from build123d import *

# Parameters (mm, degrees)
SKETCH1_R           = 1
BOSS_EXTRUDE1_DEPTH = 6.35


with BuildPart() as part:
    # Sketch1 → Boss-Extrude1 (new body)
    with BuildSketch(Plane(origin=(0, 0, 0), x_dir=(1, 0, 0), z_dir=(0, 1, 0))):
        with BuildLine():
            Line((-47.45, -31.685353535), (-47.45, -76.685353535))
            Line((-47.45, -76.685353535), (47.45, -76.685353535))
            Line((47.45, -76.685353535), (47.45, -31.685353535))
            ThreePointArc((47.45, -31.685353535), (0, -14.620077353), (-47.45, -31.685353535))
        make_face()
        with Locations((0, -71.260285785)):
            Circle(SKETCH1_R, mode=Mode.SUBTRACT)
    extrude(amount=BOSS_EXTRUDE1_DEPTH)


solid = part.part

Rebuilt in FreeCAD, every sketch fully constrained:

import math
import FreeCAD as App
import Part
import Sketcher

doc = App.newDocument("Part")
params = doc.addObject("Spreadsheet::Sheet", "Params")
for row, (alias, value) in enumerate([
    ("sketch1_diameter", "2 mm"),
    ("sketch1_radius", "74.5 mm"),
    ("sketch1_height", "45 mm"),
    ("sketch1_width", "94.9 mm"),
    ("pad1_length", "6.35 mm"),
], start=1):
    params.set(f"A{row}", alias)
    params.set(f"B{row}", "=" + value)
    params.setAlias(f"B{row}", alias)

body = doc.addObject("PartDesign::Body", "Body")

# Sketch on XZ plane
sketch1 = body.newObject("Sketcher::SketchObject", "Sketch")
sketch1.AttachmentSupport = (doc.getObject("XZ_Plane"), [""])
sketch1.MapMode = "FlatFace"
sketch1.addGeometry([
    Part.LineSegment(App.Vector(-47.5, 31.7, 0), App.Vector(-47.5, 76.7, 0)),  # 0
    Part.LineSegment(App.Vector(-47.5, 76.7, 0), App.Vector(47.5, 76.7, 0)),  # 1
    Part.LineSegment(App.Vector(47.5, 76.7, 0), App.Vector(47.5, 31.7, 0)),  # 2
    Part.ArcOfCircle(Part.Circle(App.Vector(0, 89.1, 0), App.Vector(0, 0, 1), 74.5), math.radians(-130), math.radians(-50)),  # 3
    Part.Circle(App.Vector(0, 71.3, 0), App.Vector(0, 0, 1), 1),  # 4
], False)
sketch1.addConstraint([
    Sketcher.Constraint("Coincident", 0, 2, 1, 1),
    Sketcher.Constraint("Coincident", 1, 2, 2, 1),
    Sketcher.Constraint("Coincident", 2, 2, 3, 2),
    Sketcher.Constraint("Coincident", 3, 1, 0, 1),
    Sketcher.Constraint("Vertical", 0),
    Sketcher.Constraint("Horizontal", 1),
    Sketcher.Constraint("Vertical", 2),
    Sketcher.Constraint("Symmetric", 2, 2, 3, 1, -2),
    Sketcher.Constraint("PointOnObject", 4, 3, -2),
    Sketcher.Constraint("Diameter", 4, 2.0),
    Sketcher.Constraint("Radius", 3, 74.5),
    Sketcher.Constraint("DistanceY", 0, 1, 0, 2, 45.0),
    Sketcher.Constraint("DistanceX", 1, 1, 1, 2, 94.9),
    Sketcher.Constraint("DistanceY", 4, 3, 3, 3, 17.859792),
    Sketcher.Constraint("DistanceY", -1, 1, 3, 3, 89.120077),
])
sketch1.setExpression("Constraints[9]", "Params.sketch1_diameter")
sketch1.setExpression("Constraints[10]", "Params.sketch1_radius")
sketch1.setExpression("Constraints[11]", "Params.sketch1_height")
sketch1.setExpression("Constraints[12]", "Params.sketch1_width")
pad1 = body.newObject("PartDesign::Pad", "Pad")
pad1.Profile = sketch1
pad1.setExpression("Length", "Params.pad1_length")
pad1.Reversed = True

doc.recompute()
